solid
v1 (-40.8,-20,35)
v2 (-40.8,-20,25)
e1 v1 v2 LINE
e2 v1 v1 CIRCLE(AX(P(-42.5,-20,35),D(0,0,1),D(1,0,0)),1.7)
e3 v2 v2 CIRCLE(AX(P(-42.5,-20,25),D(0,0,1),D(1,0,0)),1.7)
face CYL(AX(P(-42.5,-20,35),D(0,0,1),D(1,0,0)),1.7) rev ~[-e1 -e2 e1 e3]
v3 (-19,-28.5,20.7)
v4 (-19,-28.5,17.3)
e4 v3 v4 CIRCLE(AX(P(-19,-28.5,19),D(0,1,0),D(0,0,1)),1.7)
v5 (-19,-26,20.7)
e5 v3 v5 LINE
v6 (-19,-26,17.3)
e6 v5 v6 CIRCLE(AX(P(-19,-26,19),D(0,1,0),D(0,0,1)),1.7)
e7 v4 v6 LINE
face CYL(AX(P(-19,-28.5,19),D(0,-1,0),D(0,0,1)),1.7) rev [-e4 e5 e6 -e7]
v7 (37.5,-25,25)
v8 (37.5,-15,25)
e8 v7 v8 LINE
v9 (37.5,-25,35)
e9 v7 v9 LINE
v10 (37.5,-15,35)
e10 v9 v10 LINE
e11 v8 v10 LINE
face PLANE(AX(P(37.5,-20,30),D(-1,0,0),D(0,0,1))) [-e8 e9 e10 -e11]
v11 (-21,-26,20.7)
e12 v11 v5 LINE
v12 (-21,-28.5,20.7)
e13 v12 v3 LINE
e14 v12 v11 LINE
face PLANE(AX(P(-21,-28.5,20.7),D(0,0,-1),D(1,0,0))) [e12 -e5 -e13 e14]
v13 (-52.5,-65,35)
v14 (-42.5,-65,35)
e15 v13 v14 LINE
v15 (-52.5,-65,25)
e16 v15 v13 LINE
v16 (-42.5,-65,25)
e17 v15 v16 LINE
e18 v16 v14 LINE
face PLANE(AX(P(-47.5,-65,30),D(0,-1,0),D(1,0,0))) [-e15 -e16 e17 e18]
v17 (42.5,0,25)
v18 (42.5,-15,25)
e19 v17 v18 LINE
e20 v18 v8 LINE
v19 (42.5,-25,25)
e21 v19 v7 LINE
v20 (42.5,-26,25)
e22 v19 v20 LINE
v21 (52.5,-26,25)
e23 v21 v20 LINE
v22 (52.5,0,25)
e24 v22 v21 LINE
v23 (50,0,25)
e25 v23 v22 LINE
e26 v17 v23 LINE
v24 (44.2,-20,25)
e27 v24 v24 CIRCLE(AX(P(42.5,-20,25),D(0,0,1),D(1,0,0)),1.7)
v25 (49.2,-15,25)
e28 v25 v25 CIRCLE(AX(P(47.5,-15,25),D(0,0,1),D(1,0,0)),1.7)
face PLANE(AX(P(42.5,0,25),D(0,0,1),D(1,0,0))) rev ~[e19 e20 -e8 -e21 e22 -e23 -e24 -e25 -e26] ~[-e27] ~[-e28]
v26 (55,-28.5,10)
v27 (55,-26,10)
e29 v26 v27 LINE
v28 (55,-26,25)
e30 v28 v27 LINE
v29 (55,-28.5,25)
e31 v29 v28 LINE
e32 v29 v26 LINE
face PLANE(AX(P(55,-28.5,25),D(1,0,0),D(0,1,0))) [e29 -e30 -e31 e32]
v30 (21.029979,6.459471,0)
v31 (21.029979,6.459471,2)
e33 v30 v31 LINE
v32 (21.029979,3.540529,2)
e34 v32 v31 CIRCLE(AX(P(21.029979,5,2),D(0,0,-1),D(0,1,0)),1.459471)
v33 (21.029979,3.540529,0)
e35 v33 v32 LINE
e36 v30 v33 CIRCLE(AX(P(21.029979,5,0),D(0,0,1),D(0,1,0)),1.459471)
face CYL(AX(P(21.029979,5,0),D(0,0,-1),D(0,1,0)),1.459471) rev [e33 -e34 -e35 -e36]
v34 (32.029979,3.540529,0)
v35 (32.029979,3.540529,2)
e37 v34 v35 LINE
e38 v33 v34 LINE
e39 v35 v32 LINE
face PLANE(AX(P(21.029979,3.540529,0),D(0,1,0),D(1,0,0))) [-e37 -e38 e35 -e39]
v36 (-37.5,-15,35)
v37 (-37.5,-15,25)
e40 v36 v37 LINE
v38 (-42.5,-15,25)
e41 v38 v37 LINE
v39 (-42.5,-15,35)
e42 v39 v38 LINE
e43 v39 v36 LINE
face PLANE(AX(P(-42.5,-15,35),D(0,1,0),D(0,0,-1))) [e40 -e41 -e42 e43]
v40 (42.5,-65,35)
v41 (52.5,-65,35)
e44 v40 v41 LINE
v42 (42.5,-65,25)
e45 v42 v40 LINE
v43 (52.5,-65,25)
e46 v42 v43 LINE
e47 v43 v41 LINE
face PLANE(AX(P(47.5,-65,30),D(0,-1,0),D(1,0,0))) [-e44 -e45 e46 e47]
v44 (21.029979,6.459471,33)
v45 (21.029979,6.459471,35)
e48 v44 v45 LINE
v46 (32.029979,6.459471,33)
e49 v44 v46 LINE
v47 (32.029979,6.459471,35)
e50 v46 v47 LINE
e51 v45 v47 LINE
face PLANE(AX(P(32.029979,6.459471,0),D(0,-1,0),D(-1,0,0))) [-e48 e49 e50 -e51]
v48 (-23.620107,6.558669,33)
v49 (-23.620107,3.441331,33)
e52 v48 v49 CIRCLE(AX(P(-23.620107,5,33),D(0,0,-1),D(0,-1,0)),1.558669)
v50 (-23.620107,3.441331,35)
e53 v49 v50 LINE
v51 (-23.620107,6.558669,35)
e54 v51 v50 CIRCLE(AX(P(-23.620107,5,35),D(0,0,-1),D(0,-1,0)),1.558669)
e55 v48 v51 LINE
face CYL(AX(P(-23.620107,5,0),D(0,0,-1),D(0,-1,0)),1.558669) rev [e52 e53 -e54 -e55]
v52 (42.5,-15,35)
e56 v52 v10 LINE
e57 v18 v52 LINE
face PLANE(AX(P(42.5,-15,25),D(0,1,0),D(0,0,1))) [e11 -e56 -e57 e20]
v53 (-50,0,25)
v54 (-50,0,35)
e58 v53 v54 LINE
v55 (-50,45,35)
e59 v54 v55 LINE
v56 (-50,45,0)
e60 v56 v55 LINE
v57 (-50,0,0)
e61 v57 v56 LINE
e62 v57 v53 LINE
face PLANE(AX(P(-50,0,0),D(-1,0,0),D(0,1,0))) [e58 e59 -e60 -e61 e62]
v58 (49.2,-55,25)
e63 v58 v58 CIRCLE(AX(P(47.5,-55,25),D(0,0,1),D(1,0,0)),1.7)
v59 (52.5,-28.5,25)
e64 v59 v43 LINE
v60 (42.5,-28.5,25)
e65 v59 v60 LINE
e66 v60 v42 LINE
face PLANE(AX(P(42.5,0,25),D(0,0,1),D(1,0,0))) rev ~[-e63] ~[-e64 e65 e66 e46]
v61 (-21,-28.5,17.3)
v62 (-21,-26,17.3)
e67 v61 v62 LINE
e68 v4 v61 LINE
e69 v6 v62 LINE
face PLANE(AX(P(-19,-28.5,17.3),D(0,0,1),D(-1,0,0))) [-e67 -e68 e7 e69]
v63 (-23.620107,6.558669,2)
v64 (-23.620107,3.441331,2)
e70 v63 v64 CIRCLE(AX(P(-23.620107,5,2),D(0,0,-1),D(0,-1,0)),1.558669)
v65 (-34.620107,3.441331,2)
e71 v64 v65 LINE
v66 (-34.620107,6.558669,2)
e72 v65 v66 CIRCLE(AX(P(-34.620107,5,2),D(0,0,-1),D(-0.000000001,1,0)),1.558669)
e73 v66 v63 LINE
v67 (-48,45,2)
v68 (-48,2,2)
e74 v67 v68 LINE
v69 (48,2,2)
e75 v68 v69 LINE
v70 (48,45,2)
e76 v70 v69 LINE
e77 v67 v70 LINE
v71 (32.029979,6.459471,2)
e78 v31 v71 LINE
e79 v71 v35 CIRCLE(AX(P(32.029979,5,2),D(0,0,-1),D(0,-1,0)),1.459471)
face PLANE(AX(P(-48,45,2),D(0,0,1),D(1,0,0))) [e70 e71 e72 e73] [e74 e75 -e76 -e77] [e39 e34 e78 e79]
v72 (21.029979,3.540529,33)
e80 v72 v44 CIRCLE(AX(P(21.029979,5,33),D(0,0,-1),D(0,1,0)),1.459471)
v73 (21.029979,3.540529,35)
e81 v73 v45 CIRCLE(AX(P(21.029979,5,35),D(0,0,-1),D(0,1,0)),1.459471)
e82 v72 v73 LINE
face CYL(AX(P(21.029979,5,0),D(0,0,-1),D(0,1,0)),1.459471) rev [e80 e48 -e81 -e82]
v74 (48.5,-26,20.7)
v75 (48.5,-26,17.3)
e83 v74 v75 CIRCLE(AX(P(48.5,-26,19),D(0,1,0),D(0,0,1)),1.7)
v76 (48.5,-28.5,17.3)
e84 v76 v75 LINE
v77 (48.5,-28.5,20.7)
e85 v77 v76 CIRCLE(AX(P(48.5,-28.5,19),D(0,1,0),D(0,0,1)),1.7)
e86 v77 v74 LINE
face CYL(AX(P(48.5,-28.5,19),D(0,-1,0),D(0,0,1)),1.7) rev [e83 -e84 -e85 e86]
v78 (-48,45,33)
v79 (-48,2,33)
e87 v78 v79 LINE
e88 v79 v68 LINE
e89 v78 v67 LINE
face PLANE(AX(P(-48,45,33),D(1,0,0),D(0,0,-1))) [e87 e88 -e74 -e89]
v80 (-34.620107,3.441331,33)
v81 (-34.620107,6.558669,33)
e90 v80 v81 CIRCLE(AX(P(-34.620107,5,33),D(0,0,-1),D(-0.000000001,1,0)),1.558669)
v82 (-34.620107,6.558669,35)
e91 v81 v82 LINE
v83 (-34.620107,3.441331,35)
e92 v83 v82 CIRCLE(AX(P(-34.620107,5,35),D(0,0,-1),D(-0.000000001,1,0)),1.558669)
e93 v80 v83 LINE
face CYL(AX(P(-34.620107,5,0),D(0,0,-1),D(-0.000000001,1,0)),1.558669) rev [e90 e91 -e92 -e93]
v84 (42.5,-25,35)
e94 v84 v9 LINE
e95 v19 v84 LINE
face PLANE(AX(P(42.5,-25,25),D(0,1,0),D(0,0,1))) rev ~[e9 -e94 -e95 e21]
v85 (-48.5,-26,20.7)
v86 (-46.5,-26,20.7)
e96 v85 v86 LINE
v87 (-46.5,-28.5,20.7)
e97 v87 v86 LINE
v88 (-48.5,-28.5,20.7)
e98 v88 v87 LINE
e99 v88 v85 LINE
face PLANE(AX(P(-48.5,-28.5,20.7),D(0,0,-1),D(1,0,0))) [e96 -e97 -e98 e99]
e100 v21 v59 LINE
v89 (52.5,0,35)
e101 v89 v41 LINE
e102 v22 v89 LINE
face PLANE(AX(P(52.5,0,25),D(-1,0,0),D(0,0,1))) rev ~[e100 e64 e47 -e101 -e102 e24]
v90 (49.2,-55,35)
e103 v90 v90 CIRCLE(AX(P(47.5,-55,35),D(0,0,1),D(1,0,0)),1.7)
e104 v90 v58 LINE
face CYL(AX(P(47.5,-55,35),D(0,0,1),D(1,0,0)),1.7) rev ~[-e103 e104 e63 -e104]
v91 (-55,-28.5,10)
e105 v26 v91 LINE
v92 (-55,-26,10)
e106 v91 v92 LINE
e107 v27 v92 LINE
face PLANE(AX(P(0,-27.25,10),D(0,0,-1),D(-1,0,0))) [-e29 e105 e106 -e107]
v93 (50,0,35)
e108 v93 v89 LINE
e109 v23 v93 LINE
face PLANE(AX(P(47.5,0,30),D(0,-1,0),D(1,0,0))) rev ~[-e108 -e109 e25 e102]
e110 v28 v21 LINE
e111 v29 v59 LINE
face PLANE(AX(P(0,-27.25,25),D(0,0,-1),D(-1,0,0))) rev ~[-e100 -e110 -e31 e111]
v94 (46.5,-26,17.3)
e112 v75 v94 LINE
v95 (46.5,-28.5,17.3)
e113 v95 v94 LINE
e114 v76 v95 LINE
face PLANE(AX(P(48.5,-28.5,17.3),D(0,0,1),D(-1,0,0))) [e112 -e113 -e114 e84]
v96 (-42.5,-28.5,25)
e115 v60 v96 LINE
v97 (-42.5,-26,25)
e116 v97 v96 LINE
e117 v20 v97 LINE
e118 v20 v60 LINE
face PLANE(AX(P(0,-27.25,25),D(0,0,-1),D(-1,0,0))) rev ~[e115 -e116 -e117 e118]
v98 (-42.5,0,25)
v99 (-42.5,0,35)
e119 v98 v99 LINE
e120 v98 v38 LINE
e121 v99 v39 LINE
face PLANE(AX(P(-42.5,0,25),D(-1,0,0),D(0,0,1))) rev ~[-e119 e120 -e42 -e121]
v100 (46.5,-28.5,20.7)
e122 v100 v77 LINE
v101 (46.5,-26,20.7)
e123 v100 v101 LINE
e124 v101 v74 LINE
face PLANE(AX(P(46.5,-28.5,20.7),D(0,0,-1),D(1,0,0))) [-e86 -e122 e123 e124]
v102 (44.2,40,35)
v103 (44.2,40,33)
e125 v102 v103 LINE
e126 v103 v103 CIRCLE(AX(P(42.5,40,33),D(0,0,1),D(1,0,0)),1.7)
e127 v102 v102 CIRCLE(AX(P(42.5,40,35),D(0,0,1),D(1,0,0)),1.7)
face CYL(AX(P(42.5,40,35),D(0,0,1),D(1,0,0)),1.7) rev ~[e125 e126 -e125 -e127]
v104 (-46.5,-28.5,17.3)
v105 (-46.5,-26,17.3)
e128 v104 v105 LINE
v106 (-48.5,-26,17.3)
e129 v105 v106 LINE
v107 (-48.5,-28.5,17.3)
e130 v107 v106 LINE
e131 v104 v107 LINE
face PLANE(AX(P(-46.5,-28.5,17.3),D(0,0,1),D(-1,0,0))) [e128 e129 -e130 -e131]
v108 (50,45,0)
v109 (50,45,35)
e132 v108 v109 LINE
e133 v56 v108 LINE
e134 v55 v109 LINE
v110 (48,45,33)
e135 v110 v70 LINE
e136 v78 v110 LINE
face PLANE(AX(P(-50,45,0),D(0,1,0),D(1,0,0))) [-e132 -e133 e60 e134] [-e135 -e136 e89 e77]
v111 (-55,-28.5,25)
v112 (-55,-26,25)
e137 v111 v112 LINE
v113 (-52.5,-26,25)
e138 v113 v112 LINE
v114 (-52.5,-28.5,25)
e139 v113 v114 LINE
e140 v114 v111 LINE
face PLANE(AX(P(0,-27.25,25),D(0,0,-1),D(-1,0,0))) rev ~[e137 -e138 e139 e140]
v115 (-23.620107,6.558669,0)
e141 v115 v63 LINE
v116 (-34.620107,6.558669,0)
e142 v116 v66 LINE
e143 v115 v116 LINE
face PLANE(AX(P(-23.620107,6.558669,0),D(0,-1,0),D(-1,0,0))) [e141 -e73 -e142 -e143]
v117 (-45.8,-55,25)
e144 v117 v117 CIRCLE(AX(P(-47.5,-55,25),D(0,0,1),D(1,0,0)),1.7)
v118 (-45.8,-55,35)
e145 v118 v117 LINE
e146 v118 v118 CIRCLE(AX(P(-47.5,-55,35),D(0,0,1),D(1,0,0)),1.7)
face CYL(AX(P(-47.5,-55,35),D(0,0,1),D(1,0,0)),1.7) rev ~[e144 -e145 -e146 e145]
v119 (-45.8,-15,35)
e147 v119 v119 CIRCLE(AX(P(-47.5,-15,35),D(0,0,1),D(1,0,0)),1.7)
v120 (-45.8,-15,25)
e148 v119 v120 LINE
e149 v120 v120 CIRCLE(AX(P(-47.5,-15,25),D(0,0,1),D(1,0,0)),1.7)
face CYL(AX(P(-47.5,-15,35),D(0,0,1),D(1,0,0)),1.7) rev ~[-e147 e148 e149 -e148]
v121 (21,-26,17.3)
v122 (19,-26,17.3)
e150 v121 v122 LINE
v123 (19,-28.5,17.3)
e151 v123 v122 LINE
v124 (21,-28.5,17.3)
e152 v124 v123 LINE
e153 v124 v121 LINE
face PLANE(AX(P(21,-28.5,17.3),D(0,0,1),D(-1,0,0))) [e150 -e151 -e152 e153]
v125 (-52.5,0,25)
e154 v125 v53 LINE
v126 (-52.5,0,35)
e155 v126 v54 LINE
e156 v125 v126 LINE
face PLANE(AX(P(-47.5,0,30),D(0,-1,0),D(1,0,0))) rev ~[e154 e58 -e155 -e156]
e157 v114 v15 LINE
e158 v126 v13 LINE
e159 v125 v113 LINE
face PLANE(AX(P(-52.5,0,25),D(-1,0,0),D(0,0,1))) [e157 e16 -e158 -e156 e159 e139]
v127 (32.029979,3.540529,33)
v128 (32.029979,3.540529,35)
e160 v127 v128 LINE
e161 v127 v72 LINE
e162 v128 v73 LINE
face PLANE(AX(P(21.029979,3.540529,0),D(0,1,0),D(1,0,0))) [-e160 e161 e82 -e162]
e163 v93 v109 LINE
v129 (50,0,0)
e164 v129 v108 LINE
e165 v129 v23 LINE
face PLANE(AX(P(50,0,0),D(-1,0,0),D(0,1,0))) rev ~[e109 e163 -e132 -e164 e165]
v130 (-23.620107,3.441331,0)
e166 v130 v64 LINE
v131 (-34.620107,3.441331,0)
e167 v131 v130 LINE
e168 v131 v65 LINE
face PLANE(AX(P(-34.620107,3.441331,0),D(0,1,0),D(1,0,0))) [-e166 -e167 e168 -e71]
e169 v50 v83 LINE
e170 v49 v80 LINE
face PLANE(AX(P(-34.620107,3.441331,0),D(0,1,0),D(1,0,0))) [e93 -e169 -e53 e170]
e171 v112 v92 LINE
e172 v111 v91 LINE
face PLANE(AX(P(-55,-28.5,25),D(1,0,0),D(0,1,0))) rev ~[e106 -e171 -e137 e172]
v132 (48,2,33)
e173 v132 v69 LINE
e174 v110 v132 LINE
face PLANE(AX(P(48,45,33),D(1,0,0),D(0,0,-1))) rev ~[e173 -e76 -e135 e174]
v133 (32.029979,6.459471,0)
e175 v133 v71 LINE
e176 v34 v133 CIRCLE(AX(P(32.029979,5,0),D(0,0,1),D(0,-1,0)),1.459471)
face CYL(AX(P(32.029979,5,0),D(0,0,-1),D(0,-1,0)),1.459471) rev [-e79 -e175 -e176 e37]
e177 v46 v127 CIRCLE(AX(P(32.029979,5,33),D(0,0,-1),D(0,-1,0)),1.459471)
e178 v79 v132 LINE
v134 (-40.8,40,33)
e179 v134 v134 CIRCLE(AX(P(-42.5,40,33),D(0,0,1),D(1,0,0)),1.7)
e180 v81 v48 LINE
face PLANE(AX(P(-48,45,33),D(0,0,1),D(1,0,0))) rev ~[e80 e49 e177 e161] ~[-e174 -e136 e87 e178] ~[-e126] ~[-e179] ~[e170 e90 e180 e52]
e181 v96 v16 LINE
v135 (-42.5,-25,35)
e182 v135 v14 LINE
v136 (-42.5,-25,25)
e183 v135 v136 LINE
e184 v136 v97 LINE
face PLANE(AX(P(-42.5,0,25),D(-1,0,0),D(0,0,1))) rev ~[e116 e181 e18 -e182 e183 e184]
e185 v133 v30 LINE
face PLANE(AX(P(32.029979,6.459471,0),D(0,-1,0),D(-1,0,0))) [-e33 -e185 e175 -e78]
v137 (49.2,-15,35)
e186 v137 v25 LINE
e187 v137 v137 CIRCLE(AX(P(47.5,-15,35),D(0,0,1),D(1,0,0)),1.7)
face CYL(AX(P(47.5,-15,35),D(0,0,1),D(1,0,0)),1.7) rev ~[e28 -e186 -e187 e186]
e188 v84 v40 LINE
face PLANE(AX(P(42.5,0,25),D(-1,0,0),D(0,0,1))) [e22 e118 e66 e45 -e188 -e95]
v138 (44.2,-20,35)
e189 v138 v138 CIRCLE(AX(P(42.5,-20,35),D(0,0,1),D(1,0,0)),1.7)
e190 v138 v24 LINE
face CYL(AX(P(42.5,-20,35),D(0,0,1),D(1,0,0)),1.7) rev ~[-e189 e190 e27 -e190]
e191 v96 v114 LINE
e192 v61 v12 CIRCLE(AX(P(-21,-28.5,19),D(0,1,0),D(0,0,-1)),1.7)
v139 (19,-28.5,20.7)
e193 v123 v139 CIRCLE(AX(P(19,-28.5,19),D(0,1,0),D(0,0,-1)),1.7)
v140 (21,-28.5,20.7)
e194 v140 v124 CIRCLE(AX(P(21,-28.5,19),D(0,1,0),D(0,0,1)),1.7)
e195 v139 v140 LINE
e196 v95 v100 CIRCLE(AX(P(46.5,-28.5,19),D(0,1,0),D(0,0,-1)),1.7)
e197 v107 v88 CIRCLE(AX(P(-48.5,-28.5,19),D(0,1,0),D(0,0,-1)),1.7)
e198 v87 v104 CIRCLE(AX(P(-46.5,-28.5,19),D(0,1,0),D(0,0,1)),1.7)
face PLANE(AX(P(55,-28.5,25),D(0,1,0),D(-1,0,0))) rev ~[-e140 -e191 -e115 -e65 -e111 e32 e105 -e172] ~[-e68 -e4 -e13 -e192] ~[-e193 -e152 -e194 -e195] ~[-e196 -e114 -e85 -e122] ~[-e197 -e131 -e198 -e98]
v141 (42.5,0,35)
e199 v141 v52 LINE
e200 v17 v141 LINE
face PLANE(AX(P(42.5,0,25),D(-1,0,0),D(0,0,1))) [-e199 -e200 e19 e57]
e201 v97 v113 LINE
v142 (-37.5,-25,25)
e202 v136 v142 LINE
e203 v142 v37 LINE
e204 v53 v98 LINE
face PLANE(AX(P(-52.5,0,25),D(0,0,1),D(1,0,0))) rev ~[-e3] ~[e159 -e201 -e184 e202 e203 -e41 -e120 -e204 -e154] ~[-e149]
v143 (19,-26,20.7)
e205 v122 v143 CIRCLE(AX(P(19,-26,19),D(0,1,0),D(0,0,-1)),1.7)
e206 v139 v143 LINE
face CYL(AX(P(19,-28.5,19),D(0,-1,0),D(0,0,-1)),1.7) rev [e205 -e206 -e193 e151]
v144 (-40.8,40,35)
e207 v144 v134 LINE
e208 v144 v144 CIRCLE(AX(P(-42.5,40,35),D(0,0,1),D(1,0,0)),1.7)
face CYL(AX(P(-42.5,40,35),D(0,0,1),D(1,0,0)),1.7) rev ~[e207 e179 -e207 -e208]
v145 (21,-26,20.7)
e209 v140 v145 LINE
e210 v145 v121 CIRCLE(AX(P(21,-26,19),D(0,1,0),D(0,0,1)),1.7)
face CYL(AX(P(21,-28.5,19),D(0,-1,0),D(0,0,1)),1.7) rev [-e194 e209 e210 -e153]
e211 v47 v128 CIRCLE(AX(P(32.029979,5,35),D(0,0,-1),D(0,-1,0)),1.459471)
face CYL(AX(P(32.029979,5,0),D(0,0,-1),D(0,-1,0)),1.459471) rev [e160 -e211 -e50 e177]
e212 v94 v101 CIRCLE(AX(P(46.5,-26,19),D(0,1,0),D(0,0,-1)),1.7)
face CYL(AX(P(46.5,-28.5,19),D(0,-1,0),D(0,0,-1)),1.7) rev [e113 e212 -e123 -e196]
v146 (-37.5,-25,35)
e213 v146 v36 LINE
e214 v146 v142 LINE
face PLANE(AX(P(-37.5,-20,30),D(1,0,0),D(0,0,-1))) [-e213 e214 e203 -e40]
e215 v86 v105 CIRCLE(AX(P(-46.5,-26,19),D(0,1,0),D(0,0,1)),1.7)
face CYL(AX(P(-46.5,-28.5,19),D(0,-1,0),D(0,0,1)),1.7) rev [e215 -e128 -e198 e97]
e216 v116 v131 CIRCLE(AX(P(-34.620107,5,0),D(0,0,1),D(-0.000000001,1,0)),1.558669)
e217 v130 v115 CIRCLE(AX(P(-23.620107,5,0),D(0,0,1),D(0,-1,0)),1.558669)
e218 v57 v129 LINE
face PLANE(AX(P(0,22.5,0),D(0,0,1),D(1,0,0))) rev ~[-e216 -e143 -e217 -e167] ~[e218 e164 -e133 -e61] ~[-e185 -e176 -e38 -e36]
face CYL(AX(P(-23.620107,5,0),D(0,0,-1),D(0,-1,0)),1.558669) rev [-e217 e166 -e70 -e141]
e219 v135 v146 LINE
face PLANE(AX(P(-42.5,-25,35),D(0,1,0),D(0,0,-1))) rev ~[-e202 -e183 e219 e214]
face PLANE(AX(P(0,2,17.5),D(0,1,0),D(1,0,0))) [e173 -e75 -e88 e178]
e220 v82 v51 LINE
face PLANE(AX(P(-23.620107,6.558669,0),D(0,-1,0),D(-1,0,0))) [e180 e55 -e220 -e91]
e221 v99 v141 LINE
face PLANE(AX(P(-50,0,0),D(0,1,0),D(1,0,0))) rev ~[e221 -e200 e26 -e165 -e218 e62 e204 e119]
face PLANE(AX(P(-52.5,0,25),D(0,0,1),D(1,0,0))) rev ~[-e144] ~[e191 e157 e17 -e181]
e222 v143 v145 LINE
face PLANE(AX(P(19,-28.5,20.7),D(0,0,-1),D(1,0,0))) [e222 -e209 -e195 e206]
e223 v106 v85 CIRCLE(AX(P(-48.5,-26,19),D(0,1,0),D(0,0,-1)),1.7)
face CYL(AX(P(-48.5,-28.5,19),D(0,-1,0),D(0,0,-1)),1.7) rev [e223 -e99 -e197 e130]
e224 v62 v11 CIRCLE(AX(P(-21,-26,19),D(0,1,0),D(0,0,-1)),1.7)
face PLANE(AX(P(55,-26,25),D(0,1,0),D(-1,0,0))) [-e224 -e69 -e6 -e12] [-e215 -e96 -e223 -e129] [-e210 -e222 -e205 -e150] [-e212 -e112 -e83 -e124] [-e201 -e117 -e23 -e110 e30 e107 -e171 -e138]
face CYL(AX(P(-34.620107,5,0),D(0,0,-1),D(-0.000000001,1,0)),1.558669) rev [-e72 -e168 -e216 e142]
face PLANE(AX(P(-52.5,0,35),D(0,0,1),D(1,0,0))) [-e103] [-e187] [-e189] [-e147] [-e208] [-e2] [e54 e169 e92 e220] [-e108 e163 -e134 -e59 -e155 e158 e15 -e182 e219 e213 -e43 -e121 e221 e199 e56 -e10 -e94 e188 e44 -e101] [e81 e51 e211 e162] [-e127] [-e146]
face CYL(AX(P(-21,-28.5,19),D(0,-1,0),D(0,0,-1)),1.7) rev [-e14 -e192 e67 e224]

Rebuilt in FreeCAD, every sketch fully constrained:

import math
import FreeCAD as App
import Part
import Sketcher

V = App.Vector
Q = App.Units.Quantity

doc = App.newDocument("Part")
params = doc.addObject("Spreadsheet::Sheet", "Params")
for row, (alias, value) in enumerate([
    ("sketch1_width", "100 mm"),
    ("sketch1_height", "45 mm"),
    ("pad1_length", "35 mm"),
    ("sketch2_width", "96 mm"),
    ("sketch2_height", "31 mm"),
    ("pocket1_length", "43 mm"),
    ("sketch3_width", "10 mm"),
    ("pad2_length", "65 mm"),
    ("sketch4_width", "10 mm"),
    ("pad3_length", "5 mm"),
    ("sketch5_width", "10 mm"),
    ("pad4_length", "5 mm"),
    ("sketch6_diameter", "3.4 mm"),
    ("pocket2_length", "2 mm"),
    ("sketch7_diameter", "3.4 mm"),
    ("pocket3_length", "10 mm"),
    ("sketch8_diameter", "3.4 mm"),
    ("pocket4_length", "10 mm"),
    ("sketch9_width", "110 mm"),
    ("sketch9_height", "2.5 mm"),
    ("pad5_length", "15 mm"),
    ("sketch10_radius", "1.7 mm"),
    ("sketch10_width", "2 mm"),
    ("pocket5_length", "2.5 mm"),
    ("sketch11_width", "11 mm"),
], start=1):
    params.set(f"A{row}", alias)
    params.set(f"B{row}", "=" + value)
    params.setAlias(f"B{row}", alias)

body = doc.addObject("PartDesign::Body", "Body")

# Sketch on XY plane
sketch1 = body.newObject("Sketcher::SketchObject", "Sketch")
sketch1.AttachmentSupport = (doc.getObject("XY_Plane"), [""])
sketch1.MapMode = "FlatFace"
sketch1.addGeometry(Part.LineSegment(V(-50, 45, 0), V(-50, 0, 0)), False)
sketch1.addGeometry(Part.LineSegment(V(-50, 0, 0), V(50, 0, 0)), False)
sketch1.addGeometry(Part.LineSegment(V(50, 0, 0), V(50, 45, 0)), False)
sketch1.addGeometry(Part.LineSegment(V(50, 45, 0), V(-50, 45, 0)), False)
sketch1.addConstraint(Sketcher.Constraint("Coincident", 0, 2, 1, 1))
sketch1.addConstraint(Sketcher.Constraint("Coincident", 1, 2, 2, 1))
sketch1.addConstraint(Sketcher.Constraint("Coincident", 2, 2, 3, 1))
sketch1.addConstraint(Sketcher.Constraint("Coincident", 3, 2, 0, 1))
sketch1.addConstraint(Sketcher.Constraint("Vertical", 0))
sketch1.addConstraint(Sketcher.Constraint("Horizontal", 1))
sketch1.addConstraint(Sketcher.Constraint("Vertical", 2))
sketch1.addConstraint(Sketcher.Constraint("Horizontal", 3))
sketch1.addConstraint(Sketcher.Constraint("Symmetric", 0, 2, 1, 2, -1, 1))
sketch1.addConstraint(Sketcher.Constraint("DistanceX", 1, 1, 1, 2, Q("100 mm")))
sketch1.addConstraint(Sketcher.Constraint("DistanceY", 0, 2, 0, 1, Q("45 mm")))
sketch1.setExpression("Constraints[9]", "Params.sketch1_width")
sketch1.setExpression("Constraints[10]", "Params.sketch1_height")
pad1 = body.newObject("PartDesign::Pad", "Pad")
pad1.Profile = sketch1
pad1.setExpression("Length", "Params.pad1_length")

# Sketch on XZ plane
sketch2 = body.newObject("Sketcher::SketchObject", "Sketch001")
sketch2.AttachmentSupport = (doc.getObject("XZ_Plane"), [""])
sketch2.MapMode = "FlatFace"
sketch2.AttachmentOffset = App.Placement(V(0, 0, -45), App.Rotation())
sketch2.addGeometry(Part.LineSegment(V(-48, 2, 0), V(-48, 33, 0)), False)
sketch2.addGeometry(Part.LineSegment(V(-48, 33, 0), V(48, 33, 0)), False)
sketch2.addGeometry(Part.LineSegment(V(48, 33, 0), V(48, 2, 0)), False)
sketch2.addGeometry(Part.LineSegment(V(48, 2, 0), V(-48, 2, 0)), False)
sketch2.addConstraint(Sketcher.Constraint("Coincident", 0, 2, 1, 1))
sketch2.addConstraint(Sketcher.Constraint("Coincident", 1, 2, 2, 1))
sketch2.addConstraint(Sketcher.Constraint("Coincident", 2, 2, 3, 1))
sketch2.addConstraint(Sketcher.Constraint("Coincident", 3, 2, 0, 1))
sketch2.addConstraint(Sketcher.Constraint("Vertical", 0))
sketch2.addConstraint(Sketcher.Constraint("Horizontal", 1))
sketch2.addConstraint(Sketcher.Constraint("Vertical", 2))
sketch2.addConstraint(Sketcher.Constraint("Horizontal", 3))
sketch2.addConstraint(Sketcher.Constraint("DistanceX", 1, 1, 1, 2, Q("96 mm")))
sketch2.addConstraint(Sketcher.Constraint("DistanceY", 0, 1, 0, 2, Q("31 mm")))
sketch2.addConstraint(Sketcher.Constraint("DistanceX", 0, 2, -1, 1, Q("48 mm")))
sketch2.addConstraint(Sketcher.Constraint("DistanceY", -1, 1, 0, 2, Q("33 mm")))
sketch2.setExpression("Constraints[8]", "Params.sketch2_width")
sketch2.setExpression("Constraints[9]", "Params.sketch2_height")
pocket1 = body.newObject("PartDesign::Pocket", "Pocket")
pocket1.Profile = sketch2
pocket1.setExpression("Length", "Params.pocket1_length")
pocket1.Reversed = True

# Sketch on XZ plane
sketch3 = body.newObject("Sketcher::SketchObject", "Sketch002")
sketch3.AttachmentSupport = (doc.getObject("XZ_Plane"), [""])
sketch3.MapMode = "FlatFace"
sketch3.addGeometry(Part.LineSegment(V(-52, 35, 0), V(-52, 25, 0)), False)
sketch3.addGeometry(Part.LineSegment(V(-52, 25, 0), V(-42, 25, 0)), False)
sketch3.addGeometry(Part.LineSegment(V(-42, 25, 0), V(-42, 35, 0)), False)
sketch3.addGeometry(Part.LineSegment(V(-42, 35, 0), V(-52, 35, 0)), False)
sketch3.addGeometry(Part.LineSegment(V(42, 35, 0), V(42, 25, 0)), False)
sketch3.addGeometry(Part.LineSegment(V(42, 25, 0), V(52, 25, 0)), False)
sketch3.addGeometry(Part.LineSegment(V(52, 25, 0), V(52, 35, 0)), False)
sketch3.addGeometry(Part.LineSegment(V(52, 35, 0), V(42, 35, 0)), False)
sketch3.addConstraint(Sketcher.Constraint("Coincident", 0, 2, 1, 1))
sketch3.addConstraint(Sketcher.Constraint("Coincident", 1, 2, 2, 1))
sketch3.addConstraint(Sketcher.Constraint("Coincident", 2, 2, 3, 1))
sketch3.addConstraint(Sketcher.Constraint("Coincident", 3, 2, 0, 1))
sketch3.addConstraint(Sketcher.Constraint("Coincident", 4, 2, 5, 1))
sketch3.addConstraint(Sketcher.Constraint("Coincident", 5, 2, 6, 1))
sketch3.addConstraint(Sketcher.Constraint("Coincident", 6, 2, 7, 1))
sketch3.addConstraint(Sketcher.Constraint("Coincident", 7, 2, 4, 1))
sketch3.addConstraint(Sketcher.Constraint("Vertical", 0))
sketch3.addConstraint(Sketcher.Constraint("Horizontal", 1))
sketch3.addConstraint(Sketcher.Constraint("Vertical", 2))
sketch3.addConstraint(Sketcher.Constraint("Horizontal", 3))
sketch3.addConstraint(Sketcher.Constraint("Vertical", 4))
sketch3.addConstraint(Sketcher.Constraint("Horizontal", 5))
sketch3.addConstraint(Sketcher.Constraint("Vertical", 6))
sketch3.addConstraint(Sketcher.Constraint("Horizontal", 7))
sketch3.addConstraint(Sketcher.Constraint("Symmetric", 1, 2, 4, 2, -2))
sketch3.addConstraint(Sketcher.Constraint("Symmetric", 3, 2, 6, 2, -2))
sketch3.addConstraint(Sketcher.Constraint("Equal", 7, 0))
sketch3.addConstraint(Sketcher.Constraint("DistanceX", 1, 1, 1, 2, Q("10 mm")))
sketch3.addConstraint(Sketcher.Constraint("DistanceY", -1, 1, 0, 2, Q("25 mm")))
sketch3.addConstraint(Sketcher.Constraint("DistanceX", 1, 2, 4, 2, Q("85 mm")))
sketch3.setExpression("Constraints[19]", "Params.sketch3_width")
pad2 = body.newObject("PartDesign::Pad", "Pad001")
pad2.Profile = sketch3
pad2.setExpression("Length", "Params.pad2_length")

# Sketch on YZ plane
sketch4 = body.newObject("Sketcher::SketchObject", "Sketch003")
sketch4.AttachmentSupport = (doc.getObject("YZ_Plane"), [""])
sketch4.MapMode = "FlatFace"
sketch4.AttachmentOffset = App.Placement(V(0, 0, -42.5), App.Rotation())
sketch4.addGeometry(Part.LineSegment(V(-15, 35, 0), V(-25, 35, 0)), False)
sketch4.addGeometry(Part.LineSegment(V(-25, 35, 0), V(-25, 25, 0)), False)
sketch4.addGeometry(Part.LineSegment(V(-25, 25, 0), V(-15, 25, 0)), False)
sketch4.addGeometry(Part.LineSegment(V(-15, 25, 0), V(-15, 35, 0)), False)
sketch4.addConstraint(Sketcher.Constraint("Coincident", 0, 2, 1, 1))
sketch4.addConstraint(Sketcher.Constraint("Coincident", 1, 2, 2, 1))
sketch4.addConstraint(Sketcher.Constraint("Coincident", 2, 2, 3, 1))
sketch4.addConstraint(Sketcher.Constraint("Coincident", 3, 2, 0, 1))
sketch4.addConstraint(Sketcher.Constraint("Horizontal", 0))
sketch4.addConstraint(Sketcher.Constraint("Vertical", 1))
sketch4.addConstraint(Sketcher.Constraint("Horizontal", 2))
sketch4.addConstraint(Sketcher.Constraint("Vertical", 3))
sketch4.addConstraint(Sketcher.Constraint("Equal", 2, 1))
sketch4.addConstraint(Sketcher.Constraint("DistanceX", 0, 2, 0, 1, Q("10 mm")))
sketch4.addConstraint(Sketcher.Constraint("DistanceX", 0, 2, -1, 1, Q("25 mm")))
sketch4.addConstraint(Sketcher.Constraint("DistanceY", -1, 1, 0, 2, Q("35 mm")))
sketch4.setExpression("Constraints[9]", "Params.sketch4_width")
pad3 = body.newObject("PartDesign::Pad", "Pad002")
pad3.Profile = sketch4
pad3.setExpression("Length", "Params.pad3_length")

# Sketch on YZ plane
sketch5 = body.newObject("Sketcher::SketchObject", "Sketch004")
sketch5.AttachmentSupport = (doc.getObject("YZ_Plane"), [""])
sketch5.MapMode = "FlatFace"
sketch5.AttachmentOffset = App.Placement(V(0, 0, 42.5), App.Rotation())
sketch5.addGeometry(Part.LineSegment(V(-15, 25, 0), V(-25, 25, 0)), False)
sketch5.addGeometry(Part.LineSegment(V(-25, 25, 0), V(-25, 35, 0)), False)
sketch5.addGeometry(Part.LineSegment(V(-25, 35, 0), V(-15, 35, 0)), False)
sketch5.addGeometry(Part.LineSegment(V(-15, 35, 0), V(-15, 25, 0)), False)
sketch5.addConstraint(Sketcher.Constraint("Coincident", 0, 2, 1, 1))
sketch5.addConstraint(Sketcher.Constraint("Coincident", 1, 2, 2, 1))
sketch5.addConstraint(Sketcher.Constraint("Coincident", 2, 2, 3, 1))
sketch5.addConstraint(Sketcher.Constraint("Coincident", 3, 2, 0, 1))
sketch5.addConstraint(Sketcher.Constraint("Horizontal", 0))
sketch5.addConstraint(Sketcher.Constraint("Vertical", 1))
sketch5.addConstraint(Sketcher.Constraint("Horizontal", 2))
sketch5.addConstraint(Sketcher.Constraint("Vertical", 3))
sketch5.addConstraint(Sketcher.Constraint("Equal", 2, 1))
sketch5.addConstraint(Sketcher.Constraint("DistanceX", 0, 2, 0, 1, Q("10 mm")))
sketch5.addConstraint(Sketcher.Constraint("DistanceX", 0, 2, -1, 1, Q("25 mm")))
sketch5.addConstraint(Sketcher.Constraint("DistanceY", -1, 1, 0, 2, Q("25 mm")))
sketch5.setExpression("Constraints[9]", "Params.sketch5_width")
pad4 = body.newObject("PartDesign::Pad", "Pad003")
pad4.Profile = sketch5
pad4.setExpression("Length", "Params.pad4_length")
pad4.Reversed = True

# Sketch on XY plane
sketch6 = body.newObject("Sketcher::SketchObject", "Sketch005")
sketch6.AttachmentSupport = (doc.getObject("XY_Plane"), [""])
sketch6.MapMode = "FlatFace"
sketch6.AttachmentOffset = App.Placement(V(0, 0, 35), App.Rotation())
sketch6.addGeometry(Part.Circle(V(-42.5, 40, 0), V(0, 0, 1), 1.7), False)
sketch6.addGeometry(Part.Circle(V(42.5, 40, 0), V(0, 0, 1), 1.7), False)
sketch6.addConstraint(Sketcher.Constraint("Equal", 0, 1))
sketch6.addConstraint(Sketcher.Constraint("Symmetric", 0, 3, 1, 3, -2))
sketch6.addConstraint(Sketcher.Constraint("Diameter", 0, Q("3.4 mm")))
sketch6.addConstraint(Sketcher.Constraint("DistanceY", -1, 1, 0, 3, Q("40 mm")))
sketch6.addConstraint(Sketcher.Constraint("DistanceX", 0, 3, 1, 3, Q("85 mm")))
sketch6.setExpression("Constraints[2]", "Params.sketch6_diameter")
pocket2 = body.newObject("PartDesign::Pocket", "Pocket001")
pocket2.Profile = sketch6
pocket2.setExpression("Length", "Params.pocket2_length")

# Sketch on XY plane
sketch7 = body.newObject("Sketcher::SketchObject", "Sketch006")
sketch7.AttachmentSupport = (doc.getObject("XY_Plane"), [""])
sketch7.MapMode = "FlatFace"
sketch7.AttachmentOffset = App.Placement(V(0, 0, 35), App.Rotation())
sketch7.addGeometry(Part.Circle(V(-42.5, -20, 0), V(0, 0, 1), 1.7), False)
sketch7.addGeometry(Part.Circle(V(42.5, -20, 0), V(0, 0, 1), 1.7), False)
sketch7.addConstraint(Sketcher.Constraint("Equal", 0, 1))
sketch7.addConstraint(Sketcher.Constraint("Symmetric", 0, 3, 1, 3, -2))
sketch7.addConstraint(Sketcher.Constraint("Diameter", 0, Q("3.4 mm")))
sketch7.addConstraint(Sketcher.Constraint("DistanceY", 0, 3, -1, 1, Q("20 mm")))
sketch7.addConstraint(Sketcher.Constraint("DistanceX", 0, 3, 1, 3, Q("85 mm")))
sketch7.setExpression("Constraints[2]", "Params.sketch7_diameter")
pocket3 = body.newObject("PartDesign::Pocket", "Pocket002")
pocket3.Profile = sketch7
pocket3.setExpression("Length", "Params.pocket3_length")

# Sketch on XY plane
sketch8 = body.newObject("Sketcher::SketchObject", "Sketch007")
sketch8.AttachmentSupport = (doc.getObject("XY_Plane"), [""])
sketch8.MapMode = "FlatFace"
sketch8.AttachmentOffset = App.Placement(V(0, 0, 35), App.Rotation())
sketch8.addGeometry(Part.Circle(V(-47.5, -55, 0), V(0, 0, 1), 1.7), False)
sketch8.addGeometry(Part.Circle(V(-47.5, -15, 0), V(0, 0, 1), 1.7), False)
sketch8.addGeometry(Part.Circle(V(47.5, -55, 0), V(0, 0, 1), 1.7), False)
sketch8.addGeometry(Part.Circle(V(47.5, -15, 0), V(0, 0, 1), 1.7), False)
sketch8.addConstraint(Sketcher.Constraint("Equal", 0, 1))
sketch8.addConstraint(Sketcher.Constraint("Equal", 1, 2))
sketch8.addConstraint(Sketcher.Constraint("Equal", 2, 3))
sketch8.addConstraint(Sketcher.Constraint("Symmetric", 0, 3, 2, 3, -2))
sketch8.addConstraint(Sketcher.Constraint("Symmetric", 1, 3, 3, 3, -2))
sketch8.addConstraint(Sketcher.Constraint("Vertical", 0, 3, 1, 3))
sketch8.addConstraint(Sketcher.Constraint("Diameter", 0, Q("3.4 mm")))
sketch8.addConstraint(Sketcher.Constraint("DistanceY", 0, 3, -1, 1, Q("55 mm")))
sketch8.addConstraint(Sketcher.Constraint("DistanceY", 1, 3, -1, 1, Q("15 mm")))
sketch8.addConstraint(Sketcher.Constraint("DistanceX", 0, 3, 2, 3, Q("95 mm")))
sketch8.setExpression("Constraints[6]", "Params.sketch8_diameter")
pocket4 = body.newObject("PartDesign::Pocket", "Pocket003")
pocket4.Profile = sketch8
pocket4.setExpression("Length", "Params.pocket4_length")

# Sketch on XY plane
sketch9 = body.newObject("Sketcher::SketchObject", "Sketch008")
sketch9.AttachmentSupport = (doc.getObject("XY_Plane"), [""])
sketch9.MapMode = "FlatFace"
sketch9.AttachmentOffset = App.Placement(V(0, 0, 25), App.Rotation())
sketch9.addGeometry(Part.LineSegment(V(55, -26, 0), V(55, -28.5, 0)), False)
sketch9.addGeometry(Part.LineSegment(V(55, -28.5, 0), V(-55, -28.5, 0)), False)
sketch9.addGeometry(Part.LineSegment(V(-55, -28.5, 0), V(-55, -26, 0)), False)
sketch9.addGeometry(Part.LineSegment(V(-55, -26, 0), V(55, -26, 0)), False)
sketch9.addConstraint(Sketcher.Constraint("Coincident", 0, 2, 1, 1))
sketch9.addConstraint(Sketcher.Constraint("Coincident", 1, 2, 2, 1))
sketch9.addConstraint(Sketcher.Constraint("Coincident", 2, 2, 3, 1))
sketch9.addConstraint(Sketcher.Constraint("Coincident", 3, 2, 0, 1))
sketch9.addConstraint(Sketcher.Constraint("Vertical", 0))
sketch9.addConstraint(Sketcher.Constraint("Horizontal", 1))
sketch9.addConstraint(Sketcher.Constraint("Vertical", 2))
sketch9.addConstraint(Sketcher.Constraint("Horizontal", 3))
sketch9.addConstraint(Sketcher.Constraint("DistanceX", 1, 2, 1, 1, Q("110 mm")))
sketch9.addConstraint(Sketcher.Constraint("DistanceY", 0, 2, 0, 1, Q("2.5 mm")))
sketch9.addConstraint(Sketcher.Constraint("DistanceX", -1, 1, 0, 2, Q("55 mm")))
sketch9.addConstraint(Sketcher.Constraint("DistanceY", 2, 2, -1, 1, Q("26 mm")))
sketch9.setExpression("Constraints[8]", "Params.sketch9_width")
sketch9.setExpression("Constraints[9]", "Params.sketch9_height")
pad5 = body.newObject("PartDesign::Pad", "Pad004")
pad5.Profile = sketch9
pad5.setExpression("Length", "Params.pad5_length")
pad5.Reversed = True

# Sketch on XZ plane
sketch10 = body.newObject("Sketcher::SketchObject", "Sketch009")
sketch10.AttachmentSupport = (doc.getObject("XZ_Plane"), [""])
sketch10.MapMode = "FlatFace"
sketch10.AttachmentOffset = App.Placement(V(0, 0, 28.5), App.Rotation())
sketch10.addGeometry(Part.LineSegment(V(-46.5, 20.7, 0), V(-48.5, 20.7, 0)), False)
sketch10.addGeometry(Part.ArcOfCircle(Part.Circle(V(-48.5, 19, 0), V(0, 0, 1), 1.7), math.radians(90), math.radians(270)), False)
sketch10.addGeometry(Part.LineSegment(V(-48.5, 17.3, 0), V(-46.5, 17.3, 0)), False)
sketch10.addGeometry(Part.ArcOfCircle(Part.Circle(V(-46.5, 19, 0), V(0, 0, 1), 1.7), math.radians(-90), math.radians(90)), False)
sketch10.addGeometry(Part.LineSegment(V(-19, 20.7, 0), V(-21, 20.7, 0)), False)
sketch10.addGeometry(Part.ArcOfCircle(Part.Circle(V(-21, 19, 0), V(0, 0, 1), 1.7), math.radians(90), math.radians(270)), False)
sketch10.addGeometry(Part.LineSegment(V(-21, 17.3, 0), V(-19, 17.3, 0)), False)
sketch10.addGeometry(Part.ArcOfCircle(Part.Circle(V(-19, 19, 0), V(0, 0, 1), 1.7), math.radians(-90), math.radians(90)), False)
sketch10.addGeometry(Part.LineSegment(V(21, 20.7, 0), V(19, 20.7, 0)), False)
sketch10.addGeometry(Part.ArcOfCircle(Part.Circle(V(19, 19, 0), V(0, 0, 1), 1.7), math.radians(90), math.radians(270)), False)
sketch10.addGeometry(Part.LineSegment(V(19, 17.3, 0), V(21, 17.3, 0)), False)
sketch10.addGeometry(Part.ArcOfCircle(Part.Circle(V(21, 19, 0), V(0, 0, 1), 1.7), math.radians(-90), math.radians(90)), False)
sketch10.addGeometry(Part.LineSegment(V(48.5, 20.7, 0), V(46.5, 20.7, 0)), False)
sketch10.addGeometry(Part.ArcOfCircle(Part.Circle(V(46.5, 19, 0), V(0, 0, 1), 1.7), math.radians(90), math.radians(270)), False)
sketch10.addGeometry(Part.LineSegment(V(46.5, 17.3, 0), V(48.5, 17.3, 0)), False)
sketch10.addGeometry(Part.ArcOfCircle(Part.Circle(V(48.5, 19, 0), V(0, 0, 1), 1.7), math.radians(-90), math.radians(90)), False)
sketch10.addConstraint(Sketcher.Constraint("Tangent", 0, 2, 1, 1))
sketch10.addConstraint(Sketcher.Constraint("Tangent", 1, 2, 2, 1))
sketch10.addConstraint(Sketcher.Constraint("Tangent", 2, 2, 3, 1))
sketch10.addConstraint(Sketcher.Constraint("Tangent", 3, 2, 0, 1))
sketch10.addConstraint(Sketcher.Constraint("Tangent", 4, 2, 5, 1))
sketch10.addConstraint(Sketcher.Constraint("Tangent", 5, 2, 6, 1))
sketch10.addConstraint(Sketcher.Constraint("Tangent", 6, 2, 7, 1))
sketch10.addConstraint(Sketcher.Constraint("Tangent", 7, 2, 4, 1))
sketch10.addConstraint(Sketcher.Constraint("Tangent", 8, 2, 9, 1))
sketch10.addConstraint(Sketcher.Constraint("Tangent", 9, 2, 10, 1))
sketch10.addConstraint(Sketcher.Constraint("Tangent", 10, 2, 11, 1))
sketch10.addConstraint(Sketcher.Constraint("Tangent", 11, 2, 8, 1))
sketch10.addConstraint(Sketcher.Constraint("Tangent", 12, 2, 13, 1))
sketch10.addConstraint(Sketcher.Constraint("Tangent", 13, 2, 14, 1))
sketch10.addConstraint(Sketcher.Constraint("Tangent", 14, 2, 15, 1))
sketch10.addConstraint(Sketcher.Constraint("Tangent", 15, 2, 12, 1))
sketch10.addConstraint(Sketcher.Constraint("Horizontal", 0))
sketch10.addConstraint(Sketcher.Constraint("Horizontal", 2))
sketch10.addConstraint(Sketcher.Constraint("Horizontal", 4))
sketch10.addConstraint(Sketcher.Constraint("Horizontal", 6))
sketch10.addConstraint(Sketcher.Constraint("Horizontal", 8))
sketch10.addConstraint(Sketcher.Constraint("Horizontal", 10))
sketch10.addConstraint(Sketcher.Constraint("Horizontal", 12))
sketch10.addConstraint(Sketcher.Constraint("Horizontal", 14))
sketch10.addConstraint(Sketcher.Constraint("Equal", 3, 5))
sketch10.addConstraint(Sketcher.Constraint("Equal", 7, 9))
sketch10.addConstraint(Sketcher.Constraint("Equal", 11, 13))
sketch10.addConstraint(Sketcher.Constraint("Symmetric", 7, 3, 9, 3, -2))
sketch10.addConstraint(Sketcher.Constraint("Symmetric", 3, 3, 13, 3, -2))
sketch10.addConstraint(Sketcher.Constraint("Horizontal", 3, 3, 5, 3))
sketch10.addConstraint(Sketcher.Constraint("Equal", 2, 4))
sketch10.addConstraint(Sketcher.Constraint("Equal", 6, 8))
sketch10.addConstraint(Sketcher.Constraint("Equal", 10, 12))
sketch10.addConstraint(Sketcher.Constraint("Radius", 1, Q("1.7 mm")))
sketch10.addConstraint(Sketcher.Constraint("DistanceX", 0, 2, 0, 1, Q("2 mm")))
sketch10.addConstraint(Sketcher.Constraint("DistanceY", -1, 1, 1, 3, Q("19 mm")))
sketch10.addConstraint(Sketcher.Constraint("DistanceX", 5, 3, -1, 1, Q("21 mm")))
sketch10.addConstraint(Sketcher.Constraint("DistanceX", 3, 3, 13, 3, Q("93 mm")))
sketch10.setExpression("Constraints[33]", "Params.sketch10_radius")
sketch10.setExpression("Constraints[34]", "Params.sketch10_width")
pocket5 = body.newObject("PartDesign::Pocket", "Pocket004")
pocket5.Profile = sketch10
pocket5.setExpression("Length", "Params.pocket5_length")

# Sketch on XY plane
sketch11 = body.newObject("Sketcher::SketchObject", "Sketch010")
sketch11.AttachmentSupport = (doc.getObject("XY_Plane"), [""])
sketch11.MapMode = "FlatFace"
sketch11.addGeometry(Part.LineSegment(V(21, 6.5, 0), V(32, 6.5, 0)), False)
sketch11.addGeometry(Part.ArcOfCircle(Part.Circle(V(32, 5, 0), V(0, 0, 1), 1.5), math.radians(-90), math.radians(90)), False)
sketch11.addGeometry(Part.LineSegment(V(32, 3.5, 0), V(21, 3.5, 0)), False)
sketch11.addGeometry(Part.ArcOfCircle(Part.Circle(V(21, 5, 0), V(0, 0, 1), 1.5), math.radians(90), math.radians(270)), False)
sketch11.addGeometry(Part.LineSegment(V(-34.6, 6.6, 0), V(-23.6, 6.6, 0)), False)
sketch11.addGeometry(Part.ArcOfCircle(Part.Circle(V(-23.6, 5, 0), V(0, 0, 1), 1.6), math.radians(-90), math.radians(90)), False)
sketch11.addGeometry(Part.LineSegment(V(-23.6, 3.4, 0), V(-34.6, 3.4, 0)), False)
sketch11.addGeometry(Part.ArcOfCircle(Part.Circle(V(-34.6, 5, 0), V(0, 0, 1), 1.6), math.radians(90), math.radians(270)), False)
sketch11.addConstraint(Sketcher.Constraint("Tangent", 0, 2, 1, 2))
sketch11.addConstraint(Sketcher.Constraint("Tangent", 1, 1, 2, 1))
sketch11.addConstraint(Sketcher.Constraint("Tangent", 2, 2, 3, 2))
sketch11.addConstraint(Sketcher.Constraint("Tangent", 3, 1, 0, 1))
sketch11.addConstraint(Sketcher.Constraint("Tangent", 4, 2, 5, 2))
sketch11.addConstraint(Sketcher.Constraint("Tangent", 5, 1, 6, 1))
sketch11.addConstraint(Sketcher.Constraint("Tangent", 6, 2, 7, 2))
sketch11.addConstraint(Sketcher.Constraint("Tangent", 7, 1, 4, 1))
sketch11.addConstraint(Sketcher.Constraint("Horizontal", 0))
sketch11.addConstraint(Sketcher.Constraint("Horizontal", 2))
sketch11.addConstraint(Sketcher.Constraint("Horizontal", 4))
sketch11.addConstraint(Sketcher.Constraint("Horizontal", 6))
sketch11.addConstraint(Sketcher.Constraint("Horizontal", 3, 3, 5, 3))
sketch11.addConstraint(Sketcher.Constraint("Equal", 2, 4))
sketch11.addConstraint(Sketcher.Constraint("DistanceX", 0, 1, 0, 2, Q("11 mm")))
sketch11.addConstraint(Sketcher.Constraint("DistanceY", -1, 1, 1, 3, Q("5 mm")))
sketch11.addConstraint(Sketcher.Constraint("Radius", 1, Q("1.459471 mm")))
sketch11.addConstraint(Sketcher.Constraint("Radius", 5, Q("1.558669 mm")))
sketch11.addConstraint(Sketcher.Constraint("DistanceX", -1, 1, 1, 3, Q("32.029979 mm")))
sketch11.addConstraint(Sketcher.Constraint("DistanceX", 5, 3, -1, 1, Q("23.620107 mm")))
sketch11.setExpression("Constraints[14]", "Params.sketch11_width")
pocket6 = body.newObject("PartDesign::Pocket", "Pocket005")
pocket6.Profile = sketch11
pocket6.Type = "ThroughAll"
pocket6.Reversed = True

doc.recompute()
